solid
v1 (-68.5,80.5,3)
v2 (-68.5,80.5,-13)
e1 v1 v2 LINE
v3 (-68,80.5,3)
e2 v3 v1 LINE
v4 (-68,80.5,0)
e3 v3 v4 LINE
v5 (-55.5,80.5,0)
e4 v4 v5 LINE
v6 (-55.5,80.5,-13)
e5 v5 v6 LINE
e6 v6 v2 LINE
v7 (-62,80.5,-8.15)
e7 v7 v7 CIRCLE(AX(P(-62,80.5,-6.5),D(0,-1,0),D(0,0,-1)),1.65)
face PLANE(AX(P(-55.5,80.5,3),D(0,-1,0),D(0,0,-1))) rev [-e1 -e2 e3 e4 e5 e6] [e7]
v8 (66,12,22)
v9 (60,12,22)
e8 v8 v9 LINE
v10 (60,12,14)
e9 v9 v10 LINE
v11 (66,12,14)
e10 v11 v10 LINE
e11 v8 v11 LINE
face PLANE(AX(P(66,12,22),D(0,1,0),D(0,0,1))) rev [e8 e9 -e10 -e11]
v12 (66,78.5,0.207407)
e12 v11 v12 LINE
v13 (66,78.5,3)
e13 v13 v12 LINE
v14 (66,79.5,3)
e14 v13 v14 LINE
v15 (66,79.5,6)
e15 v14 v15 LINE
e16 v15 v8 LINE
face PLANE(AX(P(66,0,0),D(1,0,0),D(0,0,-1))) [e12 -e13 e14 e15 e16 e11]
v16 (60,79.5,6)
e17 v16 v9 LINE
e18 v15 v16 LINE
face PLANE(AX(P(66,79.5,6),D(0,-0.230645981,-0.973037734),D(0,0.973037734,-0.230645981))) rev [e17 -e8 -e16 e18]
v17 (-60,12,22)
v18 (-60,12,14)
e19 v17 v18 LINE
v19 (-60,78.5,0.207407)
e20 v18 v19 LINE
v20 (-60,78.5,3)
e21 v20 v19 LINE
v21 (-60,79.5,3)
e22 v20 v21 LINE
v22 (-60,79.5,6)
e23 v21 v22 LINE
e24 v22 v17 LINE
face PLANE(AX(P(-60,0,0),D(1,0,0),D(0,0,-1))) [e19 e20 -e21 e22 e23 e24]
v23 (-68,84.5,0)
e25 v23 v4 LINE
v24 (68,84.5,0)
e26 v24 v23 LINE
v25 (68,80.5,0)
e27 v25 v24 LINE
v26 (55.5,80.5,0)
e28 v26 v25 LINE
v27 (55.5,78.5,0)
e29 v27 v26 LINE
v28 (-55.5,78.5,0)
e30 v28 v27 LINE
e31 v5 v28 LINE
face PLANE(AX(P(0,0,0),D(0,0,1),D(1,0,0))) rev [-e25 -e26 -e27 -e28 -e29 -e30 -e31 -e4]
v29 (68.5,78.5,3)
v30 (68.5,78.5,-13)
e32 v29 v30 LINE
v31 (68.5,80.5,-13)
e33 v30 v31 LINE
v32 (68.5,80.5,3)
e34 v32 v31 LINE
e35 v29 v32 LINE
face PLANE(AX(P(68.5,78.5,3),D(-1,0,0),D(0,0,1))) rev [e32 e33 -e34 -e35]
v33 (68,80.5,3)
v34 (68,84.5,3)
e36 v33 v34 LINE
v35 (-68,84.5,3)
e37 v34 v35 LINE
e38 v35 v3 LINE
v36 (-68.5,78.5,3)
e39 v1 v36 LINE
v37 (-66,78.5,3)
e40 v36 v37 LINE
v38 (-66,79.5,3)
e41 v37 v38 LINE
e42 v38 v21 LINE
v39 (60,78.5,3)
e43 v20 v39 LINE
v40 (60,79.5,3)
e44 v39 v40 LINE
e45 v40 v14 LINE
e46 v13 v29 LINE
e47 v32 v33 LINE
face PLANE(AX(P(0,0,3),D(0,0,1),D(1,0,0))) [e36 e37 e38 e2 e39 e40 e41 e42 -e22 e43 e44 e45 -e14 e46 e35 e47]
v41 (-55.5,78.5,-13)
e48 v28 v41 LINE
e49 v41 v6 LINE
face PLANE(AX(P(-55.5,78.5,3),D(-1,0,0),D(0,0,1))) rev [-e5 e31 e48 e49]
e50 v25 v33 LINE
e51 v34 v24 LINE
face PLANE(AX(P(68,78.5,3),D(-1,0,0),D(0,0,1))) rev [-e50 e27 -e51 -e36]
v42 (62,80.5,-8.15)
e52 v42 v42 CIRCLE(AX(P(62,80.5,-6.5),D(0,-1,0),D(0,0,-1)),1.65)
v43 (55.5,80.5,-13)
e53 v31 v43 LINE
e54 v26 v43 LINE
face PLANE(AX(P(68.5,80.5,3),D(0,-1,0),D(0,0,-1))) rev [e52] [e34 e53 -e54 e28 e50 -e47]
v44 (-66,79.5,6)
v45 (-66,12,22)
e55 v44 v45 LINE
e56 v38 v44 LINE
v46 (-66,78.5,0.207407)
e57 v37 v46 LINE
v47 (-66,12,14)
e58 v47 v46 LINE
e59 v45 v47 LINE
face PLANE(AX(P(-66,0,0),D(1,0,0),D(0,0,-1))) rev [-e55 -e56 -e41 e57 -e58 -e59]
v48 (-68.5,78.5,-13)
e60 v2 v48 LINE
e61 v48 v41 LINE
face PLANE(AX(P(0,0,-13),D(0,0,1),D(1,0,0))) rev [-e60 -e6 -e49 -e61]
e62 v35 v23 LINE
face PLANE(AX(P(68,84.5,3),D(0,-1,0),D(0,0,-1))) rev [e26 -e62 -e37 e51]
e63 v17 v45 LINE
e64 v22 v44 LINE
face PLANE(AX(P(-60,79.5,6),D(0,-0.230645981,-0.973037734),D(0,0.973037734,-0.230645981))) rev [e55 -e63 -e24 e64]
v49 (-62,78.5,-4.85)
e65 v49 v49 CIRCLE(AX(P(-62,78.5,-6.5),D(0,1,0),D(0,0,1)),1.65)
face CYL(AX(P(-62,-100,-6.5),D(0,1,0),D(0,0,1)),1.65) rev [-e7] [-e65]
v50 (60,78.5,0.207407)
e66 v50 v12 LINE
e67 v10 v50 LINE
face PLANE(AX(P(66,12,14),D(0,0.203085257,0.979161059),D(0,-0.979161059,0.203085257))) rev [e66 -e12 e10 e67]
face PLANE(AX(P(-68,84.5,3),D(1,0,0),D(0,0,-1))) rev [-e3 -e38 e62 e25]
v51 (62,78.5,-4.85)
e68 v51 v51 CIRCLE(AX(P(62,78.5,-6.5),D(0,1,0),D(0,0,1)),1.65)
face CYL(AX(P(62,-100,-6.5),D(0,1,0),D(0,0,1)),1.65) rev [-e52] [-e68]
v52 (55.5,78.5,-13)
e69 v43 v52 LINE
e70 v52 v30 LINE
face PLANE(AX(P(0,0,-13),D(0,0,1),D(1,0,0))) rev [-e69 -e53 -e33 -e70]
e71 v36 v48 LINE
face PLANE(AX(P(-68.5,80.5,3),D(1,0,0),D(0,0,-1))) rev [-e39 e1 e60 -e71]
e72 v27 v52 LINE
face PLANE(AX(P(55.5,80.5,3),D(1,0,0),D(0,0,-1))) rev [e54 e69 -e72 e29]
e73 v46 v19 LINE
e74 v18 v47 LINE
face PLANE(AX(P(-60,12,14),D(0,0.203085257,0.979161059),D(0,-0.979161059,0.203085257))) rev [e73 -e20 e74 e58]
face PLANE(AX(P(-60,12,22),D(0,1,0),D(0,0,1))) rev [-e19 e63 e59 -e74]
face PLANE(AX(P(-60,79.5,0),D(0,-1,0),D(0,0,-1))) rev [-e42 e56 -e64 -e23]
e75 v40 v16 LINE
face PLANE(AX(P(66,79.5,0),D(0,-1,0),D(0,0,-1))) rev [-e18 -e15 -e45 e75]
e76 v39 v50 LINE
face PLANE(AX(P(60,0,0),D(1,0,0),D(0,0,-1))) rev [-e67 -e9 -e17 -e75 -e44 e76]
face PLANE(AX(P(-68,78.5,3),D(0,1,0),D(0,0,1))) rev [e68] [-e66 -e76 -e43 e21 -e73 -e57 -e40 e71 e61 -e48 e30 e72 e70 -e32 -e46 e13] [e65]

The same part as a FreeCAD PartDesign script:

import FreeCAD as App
import Part
import Sketcher
Q = App.Units.Quantity

doc = App.newDocument("Part")
body = doc.addObject("PartDesign::Body", "Body")

# Sketch on XY plane
sketch1 = body.newObject("Sketcher::SketchObject", "Sketch")
sketch1.AttachmentSupport = (doc.getObject("XY_Plane"), [""])
sketch1.MapMode = "FlatFace"
sketch1.addGeometry([
    Part.LineSegment(App.Vector(-68, 84, 0), App.Vector(-68, 78, 0)),
    Part.LineSegment(App.Vector(-68, 78, 0), App.Vector(68, 78, 0)),
    Part.LineSegment(App.Vector(68, 78, 0), App.Vector(68, 84, 0)),
    Part.LineSegment(App.Vector(68, 84, 0), App.Vector(-68, 84, 0)),
], False)
sketch1.addConstraint([
    Sketcher.Constraint("Coincident", 0, 2, 1, 1),
    Sketcher.Constraint("Coincident", 1, 2, 2, 1),
    Sketcher.Constraint("Coincident", 2, 2, 3, 1),
    Sketcher.Constraint("Coincident", 3, 2, 0, 1),
    Sketcher.Constraint("Vertical", 0),
    Sketcher.Constraint("Horizontal", 1),
    Sketcher.Constraint("Vertical", 2),
    Sketcher.Constraint("Horizontal", 3),
    Sketcher.Constraint("DistanceX", 1, 1, 1, 2, Q("136 mm")),
    Sketcher.Constraint("DistanceY", 0, 2, 0, 1, Q("6 mm")),
    Sketcher.Constraint("DistanceX", 0, 2, -1, 1, Q("68 mm")),
    Sketcher.Constraint("DistanceY", -1, 1, 0, 2, Q("78.5 mm")),
])
pad1 = body.newObject("PartDesign::Pad", "Pad")
pad1.Profile = sketch1
pad1.Length = 3

# Sketch on XY plane
sketch2 = body.newObject("Sketcher::SketchObject", "Sketch001")
sketch2.AttachmentSupport = (doc.getObject("XY_Plane"), [""])
sketch2.MapMode = "FlatFace"
sketch2.AttachmentOffset = App.Placement(App.Vector(0, 0, -13), App.Rotation())
sketch2.addGeometry([
    Part.LineSegment(App.Vector(-68.5, 80.5, 0), App.Vector(-68.5, 78.5, 0)),
    Part.LineSegment(App.Vector(-68.5, 78.5, 0), App.Vector(-55.5, 78.5, 0)),
    Part.LineSegment(App.Vector(-55.5, 78.5, 0), App.Vector(-55.5, 80.5, 0)),
    Part.LineSegment(App.Vector(-55.5, 80.5, 0), App.Vector(-68.5, 80.5, 0)),
], False)
sketch2.addConstraint([
    Sketcher.Constraint("Coincident", 0, 2, 1, 1),
    Sketcher.Constraint("Coincident", 1, 2, 2, 1),
    Sketcher.Constraint("Coincident", 2, 2, 3, 1),
    Sketcher.Constraint("Coincident", 3, 2, 0, 1),
    Sketcher.Constraint("Vertical", 0),
    Sketcher.Constraint("Horizontal", 1),
    Sketcher.Constraint("Vertical", 2),
    Sketcher.Constraint("Horizontal", 3),
    Sketcher.Constraint("DistanceX", 1, 1, 1, 2, Q("13 mm")),
    Sketcher.Constraint("DistanceY", 0, 2, 0, 1, Q("2 mm")),
    Sketcher.Constraint("DistanceX", 0, 2, -1, 1, Q("68.5 mm")),
    Sketcher.Constraint("DistanceY", -1, 1, 0, 2, Q("78.5 mm")),
])
pad2 = body.newObject("PartDesign::Pad", "Pad001")
pad2.Profile = sketch2
pad2.Length = 16

# Sketch on XZ plane
sketch3 = body.newObject("Sketcher::SketchObject", "Sketch002")
sketch3.AttachmentSupport = (doc.getObject("XZ_Plane"), [""])
sketch3.MapMode = "FlatFace"
sketch3.addGeometry(Part.Circle(App.Vector(-62, -6.5, 0), App.Vector(0, 0, 1), 1.6), False)
sketch3.addConstraint([
    Sketcher.Constraint("Diameter", 0, Q("3.3 mm")),
    Sketcher.Constraint("DistanceX", 0, 3, -1, 1, Q("62 mm")),
    Sketcher.Constraint("DistanceY", 0, 3, -1, 1, Q("6.5 mm")),
])
pocket1 = body.newObject("PartDesign::Pocket", "Pocket")
pocket1.Profile = sketch3
pocket1.Type = "ThroughAll"
pocket1.Midplane = True

# Sketch on XY plane
sketch4 = body.newObject("Sketcher::SketchObject", "Sketch003")
sketch4.AttachmentSupport = (doc.getObject("XY_Plane"), [""])
sketch4.MapMode = "FlatFace"
sketch4.AttachmentOffset = App.Placement(App.Vector(0, 0, -13), App.Rotation())
sketch4.addGeometry([
    Part.LineSegment(App.Vector(55.5, 80.5, 0), App.Vector(55.5, 78.5, 0)),
    Part.LineSegment(App.Vector(55.5, 78.5, 0), App.Vector(68.5, 78.5, 0)),
    Part.LineSegment(App.Vector(68.5, 78.5, 0), App.Vector(68.5, 80.5, 0)),
    Part.LineSegment(App.Vector(68.5, 80.5, 0), App.Vector(55.5, 80.5, 0)),
], False)
sketch4.addConstraint([
    Sketcher.Constraint("Coincident", 0, 2, 1, 1),
    Sketcher.Constraint("Coincident", 1, 2, 2, 1),
    Sketcher.Constraint("Coincident", 2, 2, 3, 1),
    Sketcher.Constraint("Coincident", 3, 2, 0, 1),
    Sketcher.Constraint("Vertical", 0),
    Sketcher.Constraint("Horizontal", 1),
    Sketcher.Constraint("Vertical", 2),
    Sketcher.Constraint("Horizontal", 3),
    Sketcher.Constraint("DistanceX", 1, 1, 1, 2, Q("13 mm")),
    Sketcher.Constraint("DistanceY", 0, 2, 0, 1, Q("2 mm")),
    Sketcher.Constraint("DistanceX", -1, 1, 0, 2, Q("55.5 mm")),
    Sketcher.Constraint("DistanceY", -1, 1, 0, 2, Q("78.5 mm")),
])
pad3 = body.newObject("PartDesign::Pad", "Pad002")
pad3.Profile = sketch4
pad3.Length = 16

# Sketch on XZ plane
sketch5 = body.newObject("Sketcher::SketchObject", "Sketch004")
sketch5.AttachmentSupport = (doc.getObject("XZ_Plane"), [""])
sketch5.MapMode = "FlatFace"
sketch5.addGeometry(Part.Circle(App.Vector(62, -6.5, 0), App.Vector(0, 0, 1), 1.6), False)
sketch5.addConstraint([
    Sketcher.Constraint("Diameter", 0, Q("3.3 mm")),
    Sketcher.Constraint("DistanceX", -1, 1, 0, 3, Q("62 mm")),
    Sketcher.Constraint("DistanceY", 0, 3, -1, 1, Q("6.5 mm")),
])
pocket2 = body.newObject("PartDesign::Pocket", "Pocket001")
pocket2.Profile = sketch5
pocket2.Type = "ThroughAll"
pocket2.Midplane = True

# Sketch on YZ plane
sketch6 = body.newObject("Sketcher::SketchObject", "Sketch005")
sketch6.AttachmentSupport = (doc.getObject("YZ_Plane"), [""])
sketch6.MapMode = "FlatFace"
sketch6.AttachmentOffset = App.Placement(App.Vector(0, 0, -66), App.Rotation())
sketch6.addGeometry([
    Part.LineSegment(App.Vector(80, 0, 0), App.Vector(80, 6, 0)),
    Part.LineSegment(App.Vector(80, 6, 0), App.Vector(12, 22, 0)),
    Part.LineSegment(App.Vector(12, 22, 0), App.Vector(12, 14, 0)),
    Part.LineSegment(App.Vector(12, 14, 0), App.Vector(80, 0, 0)),
], False)
sketch6.addConstraint([
    Sketcher.Constraint("Coincident", 0, 2, 1, 1),
    Sketcher.Constraint("Coincident", 1, 2, 2, 1),
    Sketcher.Constraint("Coincident", 2, 2, 3, 1),
    Sketcher.Constraint("Coincident", 3, 2, 0, 1),
    Sketcher.Constraint("Vertical", 0),
    Sketcher.Constraint("Vertical", 2),
    Sketcher.Constraint("PointOnObject", 3, 2, -1),
    Sketcher.Constraint("DistanceY", 0, 1, 0, 2, Q("6 mm")),
    Sketcher.Constraint("DistanceY", 2, 2, 2, 1, Q("8 mm")),
    Sketcher.Constraint("DistanceX", -1, 1, 1, 2, Q("12 mm")),
    Sketcher.Constraint("DistanceY", -1, 1, 1, 2, Q("22 mm")),
    Sketcher.Constraint("DistanceX", -1, 1, 0, 2, Q("79.5 mm")),
])
pad4 = body.newObject("PartDesign::Pad", "Pad003")
pad4.Profile = sketch6
pad4.Length = 6

# Sketch on YZ plane
sketch7 = body.newObject("Sketcher::SketchObject", "Sketch006")
sketch7.AttachmentSupport = (doc.getObject("YZ_Plane"), [""])
sketch7.MapMode = "FlatFace"
sketch7.AttachmentOffset = App.Placement(App.Vector(0, 0, 60), App.Rotation())
sketch7.addGeometry([
    Part.LineSegment(App.Vector(80, 0, 0), App.Vector(80, 6, 0)),
    Part.LineSegment(App.Vector(80, 6, 0), App.Vector(12, 22, 0)),
    Part.LineSegment(App.Vector(12, 22, 0), App.Vector(12, 14, 0)),
    Part.LineSegment(App.Vector(12, 14, 0), App.Vector(80, 0, 0)),
], False)
sketch7.addConstraint([
    Sketcher.Constraint("Coincident", 0, 2, 1, 1),
    Sketcher.Constraint("Coincident", 1, 2, 2, 1),
    Sketcher.Constraint("Coincident", 2, 2, 3, 1),
    Sketcher.Constraint("Coincident", 3, 2, 0, 1),
    Sketcher.Constraint("Vertical", 0),
    Sketcher.Constraint("Vertical", 2),
    Sketcher.Constraint("PointOnObject", 3, 2, -1),
    Sketcher.Constraint("DistanceY", 0, 1, 0, 2, Q("6 mm")),
    Sketcher.Constraint("DistanceY", 2, 2, 2, 1, Q("8 mm")),
    Sketcher.Constraint("DistanceX", -1, 1, 1, 2, Q("12 mm")),
    Sketcher.Constraint("DistanceY", -1, 1, 1, 2, Q("22 mm")),
    Sketcher.Constraint("DistanceX", -1, 1, 0, 2, Q("79.5 mm")),
])
pad5 = body.newObject("PartDesign::Pad", "Pad004")
pad5.Profile = sketch7
pad5.Length = 6

doc.recompute()
